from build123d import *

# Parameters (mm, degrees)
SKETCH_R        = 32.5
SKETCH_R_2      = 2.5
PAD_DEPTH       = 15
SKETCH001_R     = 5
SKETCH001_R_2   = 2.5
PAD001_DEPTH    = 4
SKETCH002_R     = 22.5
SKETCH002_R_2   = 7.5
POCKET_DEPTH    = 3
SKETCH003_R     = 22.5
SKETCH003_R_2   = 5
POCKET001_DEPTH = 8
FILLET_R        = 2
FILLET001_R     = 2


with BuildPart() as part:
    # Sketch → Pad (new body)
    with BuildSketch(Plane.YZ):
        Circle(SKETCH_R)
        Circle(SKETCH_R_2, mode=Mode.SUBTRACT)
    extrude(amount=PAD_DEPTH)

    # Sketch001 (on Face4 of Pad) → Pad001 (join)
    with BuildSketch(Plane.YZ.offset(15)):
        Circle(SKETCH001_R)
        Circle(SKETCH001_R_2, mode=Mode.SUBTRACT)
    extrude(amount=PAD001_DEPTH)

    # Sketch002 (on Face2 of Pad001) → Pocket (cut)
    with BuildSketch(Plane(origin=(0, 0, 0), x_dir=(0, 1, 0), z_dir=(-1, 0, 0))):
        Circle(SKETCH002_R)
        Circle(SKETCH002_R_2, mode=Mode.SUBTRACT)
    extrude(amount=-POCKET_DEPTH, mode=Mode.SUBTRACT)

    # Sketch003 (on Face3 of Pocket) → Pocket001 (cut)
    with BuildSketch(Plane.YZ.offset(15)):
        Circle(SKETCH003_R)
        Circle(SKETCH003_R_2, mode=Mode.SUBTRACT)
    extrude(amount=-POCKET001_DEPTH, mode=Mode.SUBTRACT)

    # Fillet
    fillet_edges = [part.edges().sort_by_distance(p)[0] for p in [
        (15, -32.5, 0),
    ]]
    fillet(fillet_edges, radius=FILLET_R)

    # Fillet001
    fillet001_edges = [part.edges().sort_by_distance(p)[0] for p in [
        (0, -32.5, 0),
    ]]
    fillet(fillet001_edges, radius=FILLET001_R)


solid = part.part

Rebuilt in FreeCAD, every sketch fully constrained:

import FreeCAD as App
import Part
import Sketcher
Q = App.Units.Quantity


def edges_at(feature, points):
    """Names of the edges that pass closest to the given points."""
    edges = feature.Shape.Edges
    near = lambda p: min(range(len(edges)), key=lambda i: edges[i].distToShape(Part.Vertex(*p))[0])
    return sorted({f"Edge{near(p) + 1}" for p in points})

doc = App.newDocument("Part")
body = doc.addObject("PartDesign::Body", "Body")

sketch1 = body.newObject("Sketcher::SketchObject", "Sketch")
sketch1.AttachmentSupport = (doc.getObject("YZ_Plane"), [""])
sketch1.MapMode = "FlatFace"
sketch1.addGeometry([
    Part.Circle(App.Vector(0, 0, 0), App.Vector(0, 0, 1), 32.5),
    Part.Circle(App.Vector(0, 0, 0), App.Vector(0, 0, 1), 2.5),
], False)
sketch1.addConstraint([
    Sketcher.Constraint("Coincident", 0, 3, -1, 1),
    Sketcher.Constraint("Coincident", 1, 3, -1, 1),
    Sketcher.Constraint("Diameter", 0, Q("65 mm")),
    Sketcher.Constraint("Diameter", 1, Q("5 mm")),
])
pad1 = body.newObject("PartDesign::Pad", "Pad")
pad1.Profile = sketch1
pad1.Length = 15

sketch2 = body.newObject("Sketcher::SketchObject", "Sketch001")
sketch2.AttachmentSupport = (doc.getObject("YZ_Plane"), [""])
sketch2.MapMode = "FlatFace"
sketch2.AttachmentOffset = App.Placement(App.Vector(0, 0, 15), App.Rotation())
sketch2.addGeometry([
    Part.Circle(App.Vector(0, 0, 0), App.Vector(0, 0, 1), 5),
    Part.Circle(App.Vector(0, 0, 0), App.Vector(0, 0, 1), 2.5),
], False)
sketch2.addConstraint([
    Sketcher.Constraint("Coincident", 0, 3, -1, 1),
    Sketcher.Constraint("Coincident", 1, 3, -1, 1),
    Sketcher.Constraint("Diameter", 0, Q("10 mm")),
    Sketcher.Constraint("Diameter", 1, Q("5 mm")),
])
pad2 = body.newObject("PartDesign::Pad", "Pad001")
pad2.Profile = sketch2
pad2.Length = 4

sketch3 = body.newObject("Sketcher::SketchObject", "Sketch002")
sketch3.AttachmentSupport = (doc.getObject("YZ_Plane"), [""])
sketch3.MapMode = "FlatFace"
sketch3.addGeometry([
    Part.Circle(App.Vector(0, 0, 0), App.Vector(0, 0, 1), 22),
    Part.Circle(App.Vector(0, 0, 0), App.Vector(0, 0, 1), 8),
], False)
sketch3.addConstraint([
    Sketcher.Constraint("Coincident", 0, 3, -1, 1),
    Sketcher.Constraint("Coincident", 1, 3, -1, 1),
    Sketcher.Constraint("Diameter", 0, Q("45 mm")),
    Sketcher.Constraint("Diameter", 1, Q("15 mm")),
])
pocket1 = body.newObject("PartDesign::Pocket", "Pocket")
pocket1.Profile = sketch3
pocket1.Length = 3
pocket1.Reversed = True

sketch4 = body.newObject("Sketcher::SketchObject", "Sketch003")
sketch4.AttachmentSupport = (doc.getObject("YZ_Plane"), [""])
sketch4.MapMode = "FlatFace"
sketch4.AttachmentOffset = App.Placement(App.Vector(0, 0, 15), App.Rotation())
sketch4.addGeometry([
    Part.Circle(App.Vector(0, 0, 0), App.Vector(0, 0, 1), 22),
    Part.Circle(App.Vector(0, 0, 0), App.Vector(0, 0, 1), 5),
], False)
sketch4.addConstraint([
    Sketcher.Constraint("Coincident", 0, 3, -1, 1),
    Sketcher.Constraint("Coincident", 1, 3, -1, 1),
    Sketcher.Constraint("Diameter", 0, Q("45 mm")),
    Sketcher.Constraint("Diameter", 1, Q("10 mm")),
])
pocket2 = body.newObject("PartDesign::Pocket", "Pocket001")
pocket2.Profile = sketch4
pocket2.Length = 8
doc.recompute()

fillet = body.newObject("PartDesign::Fillet", "Fillet")
fillet.Base = (pocket2, edges_at(pocket2, [(15, -32.5, 0)]))
fillet.Radius = 2
doc.recompute()

fillet2 = body.newObject("PartDesign::Fillet", "Fillet001")
fillet2.Base = (fillet, edges_at(fillet, [(0, -32.5, 0)]))
fillet2.Radius = 2

doc.recompute()
